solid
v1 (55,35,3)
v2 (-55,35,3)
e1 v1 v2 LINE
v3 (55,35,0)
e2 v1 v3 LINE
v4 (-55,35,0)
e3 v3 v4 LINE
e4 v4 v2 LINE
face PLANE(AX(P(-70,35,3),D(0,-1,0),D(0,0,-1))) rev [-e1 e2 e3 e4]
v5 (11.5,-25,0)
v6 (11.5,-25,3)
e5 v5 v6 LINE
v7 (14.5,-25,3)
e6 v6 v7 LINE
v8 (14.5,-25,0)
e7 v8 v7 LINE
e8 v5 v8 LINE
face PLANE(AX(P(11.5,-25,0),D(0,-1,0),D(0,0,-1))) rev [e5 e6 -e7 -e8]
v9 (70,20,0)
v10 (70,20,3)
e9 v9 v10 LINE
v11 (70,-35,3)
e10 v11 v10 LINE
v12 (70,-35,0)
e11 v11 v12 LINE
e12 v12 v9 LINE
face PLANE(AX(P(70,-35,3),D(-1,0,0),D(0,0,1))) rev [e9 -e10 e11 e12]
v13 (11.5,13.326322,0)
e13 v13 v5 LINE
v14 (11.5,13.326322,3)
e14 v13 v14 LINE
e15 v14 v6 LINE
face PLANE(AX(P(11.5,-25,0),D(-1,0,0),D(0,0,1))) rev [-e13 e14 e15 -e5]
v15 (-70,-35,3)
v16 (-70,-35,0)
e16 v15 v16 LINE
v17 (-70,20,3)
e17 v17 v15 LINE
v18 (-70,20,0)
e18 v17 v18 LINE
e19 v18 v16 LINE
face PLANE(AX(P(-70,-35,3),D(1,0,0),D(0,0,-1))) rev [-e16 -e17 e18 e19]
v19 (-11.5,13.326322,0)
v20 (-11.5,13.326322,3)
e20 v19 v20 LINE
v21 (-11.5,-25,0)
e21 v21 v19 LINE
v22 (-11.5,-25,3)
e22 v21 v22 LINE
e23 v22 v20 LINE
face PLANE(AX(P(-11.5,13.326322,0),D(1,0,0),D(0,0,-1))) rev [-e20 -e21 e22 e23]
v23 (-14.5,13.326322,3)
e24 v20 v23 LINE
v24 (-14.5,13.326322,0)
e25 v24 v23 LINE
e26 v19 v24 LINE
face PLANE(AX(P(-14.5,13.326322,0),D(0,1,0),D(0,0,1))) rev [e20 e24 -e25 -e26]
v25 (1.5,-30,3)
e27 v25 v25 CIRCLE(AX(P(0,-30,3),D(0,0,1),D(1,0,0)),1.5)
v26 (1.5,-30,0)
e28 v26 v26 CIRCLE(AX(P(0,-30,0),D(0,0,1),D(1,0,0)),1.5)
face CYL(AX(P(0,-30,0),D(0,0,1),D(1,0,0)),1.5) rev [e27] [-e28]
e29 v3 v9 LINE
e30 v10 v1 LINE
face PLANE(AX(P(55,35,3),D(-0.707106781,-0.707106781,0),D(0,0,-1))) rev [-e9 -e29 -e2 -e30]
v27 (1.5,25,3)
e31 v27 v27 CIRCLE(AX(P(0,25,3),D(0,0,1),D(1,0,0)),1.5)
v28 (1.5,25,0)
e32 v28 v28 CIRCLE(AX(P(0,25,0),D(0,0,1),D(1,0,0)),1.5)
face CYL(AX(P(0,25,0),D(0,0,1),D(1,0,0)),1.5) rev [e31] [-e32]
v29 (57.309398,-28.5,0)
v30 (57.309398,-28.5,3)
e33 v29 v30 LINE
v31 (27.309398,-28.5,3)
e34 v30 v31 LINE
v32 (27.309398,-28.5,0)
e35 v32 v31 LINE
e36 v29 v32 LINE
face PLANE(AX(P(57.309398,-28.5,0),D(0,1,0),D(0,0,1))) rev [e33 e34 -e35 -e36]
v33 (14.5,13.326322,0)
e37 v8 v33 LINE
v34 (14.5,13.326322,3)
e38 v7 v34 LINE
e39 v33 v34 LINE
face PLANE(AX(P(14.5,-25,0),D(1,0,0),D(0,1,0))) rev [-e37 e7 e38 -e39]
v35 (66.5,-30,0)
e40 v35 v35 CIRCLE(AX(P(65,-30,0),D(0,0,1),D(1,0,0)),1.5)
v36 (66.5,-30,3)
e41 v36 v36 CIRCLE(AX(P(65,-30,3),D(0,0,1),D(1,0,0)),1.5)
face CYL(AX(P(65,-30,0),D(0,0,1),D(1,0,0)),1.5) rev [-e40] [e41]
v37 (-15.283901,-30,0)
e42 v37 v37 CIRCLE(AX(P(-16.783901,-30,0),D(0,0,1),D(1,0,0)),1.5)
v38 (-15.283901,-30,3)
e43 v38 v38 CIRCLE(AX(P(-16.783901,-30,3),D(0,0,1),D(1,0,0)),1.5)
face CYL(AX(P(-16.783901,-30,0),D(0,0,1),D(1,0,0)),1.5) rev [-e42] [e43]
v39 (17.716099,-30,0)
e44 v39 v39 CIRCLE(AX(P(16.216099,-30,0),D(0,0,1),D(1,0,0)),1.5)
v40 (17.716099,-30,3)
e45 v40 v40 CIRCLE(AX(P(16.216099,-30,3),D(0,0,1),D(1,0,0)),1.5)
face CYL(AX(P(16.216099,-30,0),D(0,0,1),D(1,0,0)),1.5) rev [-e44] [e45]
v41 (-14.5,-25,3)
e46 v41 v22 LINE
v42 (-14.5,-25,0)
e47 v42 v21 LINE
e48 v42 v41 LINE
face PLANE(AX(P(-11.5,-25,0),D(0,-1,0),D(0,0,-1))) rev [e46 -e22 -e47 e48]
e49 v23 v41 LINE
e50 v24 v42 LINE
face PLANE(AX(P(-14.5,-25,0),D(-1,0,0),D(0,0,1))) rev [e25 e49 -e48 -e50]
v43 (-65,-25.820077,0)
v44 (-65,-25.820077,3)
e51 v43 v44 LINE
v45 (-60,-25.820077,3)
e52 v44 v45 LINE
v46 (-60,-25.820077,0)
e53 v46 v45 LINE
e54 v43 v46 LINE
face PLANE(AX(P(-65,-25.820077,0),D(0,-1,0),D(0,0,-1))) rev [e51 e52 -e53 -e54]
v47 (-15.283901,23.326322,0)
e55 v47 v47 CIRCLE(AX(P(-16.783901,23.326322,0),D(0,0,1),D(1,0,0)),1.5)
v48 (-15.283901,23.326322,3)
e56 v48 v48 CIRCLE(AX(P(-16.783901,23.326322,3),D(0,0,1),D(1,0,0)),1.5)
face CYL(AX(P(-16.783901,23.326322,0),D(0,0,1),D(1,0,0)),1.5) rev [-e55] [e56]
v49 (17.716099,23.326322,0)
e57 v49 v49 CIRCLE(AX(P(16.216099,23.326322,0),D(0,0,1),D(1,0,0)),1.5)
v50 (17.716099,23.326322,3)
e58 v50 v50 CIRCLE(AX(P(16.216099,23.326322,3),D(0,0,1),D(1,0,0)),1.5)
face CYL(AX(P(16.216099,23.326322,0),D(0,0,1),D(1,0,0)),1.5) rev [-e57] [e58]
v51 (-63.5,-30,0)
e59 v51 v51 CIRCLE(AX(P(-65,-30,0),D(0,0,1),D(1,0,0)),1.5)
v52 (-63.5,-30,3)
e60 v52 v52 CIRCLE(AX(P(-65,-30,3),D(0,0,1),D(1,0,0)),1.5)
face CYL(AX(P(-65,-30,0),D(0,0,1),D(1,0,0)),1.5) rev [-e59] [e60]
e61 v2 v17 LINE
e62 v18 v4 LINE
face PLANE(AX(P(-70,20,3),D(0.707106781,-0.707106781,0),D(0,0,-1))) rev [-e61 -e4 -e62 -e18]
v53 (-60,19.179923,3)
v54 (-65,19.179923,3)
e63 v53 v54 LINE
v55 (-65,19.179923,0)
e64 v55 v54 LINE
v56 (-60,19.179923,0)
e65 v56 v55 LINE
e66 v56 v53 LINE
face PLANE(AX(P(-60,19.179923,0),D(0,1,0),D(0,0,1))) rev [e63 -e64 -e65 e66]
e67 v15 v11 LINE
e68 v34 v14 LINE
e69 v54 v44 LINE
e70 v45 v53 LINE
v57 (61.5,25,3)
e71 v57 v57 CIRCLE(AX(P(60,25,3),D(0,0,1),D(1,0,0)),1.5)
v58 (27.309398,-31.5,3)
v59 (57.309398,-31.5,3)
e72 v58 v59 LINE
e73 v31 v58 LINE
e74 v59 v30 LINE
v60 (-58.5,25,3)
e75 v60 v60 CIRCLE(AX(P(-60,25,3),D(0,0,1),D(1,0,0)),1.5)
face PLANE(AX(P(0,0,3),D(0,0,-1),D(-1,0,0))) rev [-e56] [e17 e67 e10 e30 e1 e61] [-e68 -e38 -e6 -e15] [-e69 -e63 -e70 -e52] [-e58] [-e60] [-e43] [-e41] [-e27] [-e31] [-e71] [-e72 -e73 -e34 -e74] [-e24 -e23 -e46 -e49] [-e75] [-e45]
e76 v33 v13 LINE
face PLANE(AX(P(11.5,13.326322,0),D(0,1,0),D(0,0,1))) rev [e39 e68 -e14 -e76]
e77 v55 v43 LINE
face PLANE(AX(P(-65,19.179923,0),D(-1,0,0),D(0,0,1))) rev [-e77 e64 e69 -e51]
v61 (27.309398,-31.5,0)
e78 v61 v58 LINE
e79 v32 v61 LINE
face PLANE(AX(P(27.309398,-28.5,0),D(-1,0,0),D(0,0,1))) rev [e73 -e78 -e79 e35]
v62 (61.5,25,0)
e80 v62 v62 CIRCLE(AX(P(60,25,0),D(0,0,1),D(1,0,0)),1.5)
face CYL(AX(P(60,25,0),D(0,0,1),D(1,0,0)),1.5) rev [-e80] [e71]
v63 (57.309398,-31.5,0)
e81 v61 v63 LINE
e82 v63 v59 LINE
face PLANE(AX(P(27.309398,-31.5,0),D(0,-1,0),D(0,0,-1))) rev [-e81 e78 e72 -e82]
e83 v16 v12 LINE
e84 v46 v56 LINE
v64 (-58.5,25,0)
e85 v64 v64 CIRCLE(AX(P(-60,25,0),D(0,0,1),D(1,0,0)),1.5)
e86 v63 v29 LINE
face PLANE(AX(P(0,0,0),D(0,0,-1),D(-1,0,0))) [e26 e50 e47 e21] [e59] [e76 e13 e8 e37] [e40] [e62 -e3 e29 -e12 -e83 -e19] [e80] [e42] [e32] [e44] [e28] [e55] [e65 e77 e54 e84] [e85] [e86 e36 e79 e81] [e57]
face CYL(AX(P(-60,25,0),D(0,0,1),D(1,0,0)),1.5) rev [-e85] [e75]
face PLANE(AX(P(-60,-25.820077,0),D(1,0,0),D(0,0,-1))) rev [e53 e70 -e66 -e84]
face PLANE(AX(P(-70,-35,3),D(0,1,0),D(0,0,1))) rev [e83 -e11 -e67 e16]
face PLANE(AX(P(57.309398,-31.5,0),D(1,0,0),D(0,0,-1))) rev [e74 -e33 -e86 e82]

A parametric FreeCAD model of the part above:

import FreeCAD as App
import Part
import Sketcher

V = App.Vector
Q = App.Units.Quantity


def edges_at(feature, points):
    """Names of the edges that pass closest to the given points."""
    edges = feature.Shape.Edges
    near = lambda p: min(range(len(edges)), key=lambda i: edges[i].distToShape(Part.Vertex(*p))[0])
    return sorted({f"Edge{near(p) + 1}" for p in points})


def add_polygon(sketch, points):
    """Adds a closed chain of lines whose ends are joined by coincident constraints."""
    first, n = sketch.GeometryCount, len(points)
    for a, b in zip(points, points[1:] + points[:1]):
        sketch.addGeometry(Part.LineSegment(App.Vector(*a, 0), App.Vector(*b, 0)), False)
    for i in range(n):
        sketch.addConstraint(Sketcher.Constraint("Coincident", first + i, 2, first + (i + 1) % n, 1))

doc = App.newDocument("Part")
params = doc.addObject("Spreadsheet::Sheet", "Params")
for row, (alias, value) in enumerate([
    ("sketch1_width", "140 mm"),
    ("sketch1_height", "70 mm"),
    ("pad1_length", "3 mm"),
    ("sketch2_diameter", "3 mm"),
    ("pocket1_length", "3 mm"),
    ("chamfer_size", "15 mm"),
    ("sketch3_diameter", "3 mm"),
    ("sketch3_width", "3 mm"),
    ("sketch3_width2", "30 mm"),
    ("sketch3_width3", "5 mm"),
    ("sketch3_height", "45 mm"),
    ("pocket2_length", "3 mm"),
], start=1):
    params.set(f"A{row}", alias)
    params.set(f"B{row}", "=" + value)
    params.setAlias(f"B{row}", alias)

body = doc.addObject("PartDesign::Body", "Body")

sketch1 = body.newObject("Sketcher::SketchObject", "Sketch")
sketch1.AttachmentSupport = (doc.getObject("XY_Plane"), [""])
sketch1.MapMode = "FlatFace"
add_polygon(sketch1, [(-70, 35), (-70, -35), (70, -35), (70, 35)])
sketch1.addConstraint(Sketcher.Constraint("Vertical", 0))
sketch1.addConstraint(Sketcher.Constraint("Horizontal", 1))
sketch1.addConstraint(Sketcher.Constraint("Vertical", 2))
sketch1.addConstraint(Sketcher.Constraint("Horizontal", 3))
sketch1.addConstraint(Sketcher.Constraint("Symmetric", 0, 2, 2, 2, -1, 1))
sketch1.addConstraint(Sketcher.Constraint("DistanceX", 1, 1, 1, 2, Q("140 mm")))
sketch1.addConstraint(Sketcher.Constraint("DistanceY", 0, 2, 0, 1, Q("70 mm")))
sketch1.setExpression("Constraints[9]", "Params.sketch1_width")
sketch1.setExpression("Constraints[10]", "Params.sketch1_height")
pad1 = body.newObject("PartDesign::Pad", "Pad")
pad1.Profile = sketch1
pad1.setExpression("Length", "Params.pad1_length")

sketch2 = body.newObject("Sketcher::SketchObject", "Sketch001")
sketch2.AttachmentSupport = (doc.getObject("XY_Plane"), [""])
sketch2.MapMode = "FlatFace"
sketch2.AttachmentOffset = App.Placement(V(0, 0, 3), App.Rotation())
sketch2.addGeometry(Part.Circle(V(-65, -30, 0), V(0, 0, 1), 1.5), False)
sketch2.addGeometry(Part.Circle(V(65, -30, 0), V(0, 0, 1), 1.5), False)
sketch2.addGeometry(Part.Circle(V(0, -30, 0), V(0, 0, 1), 1.5), False)
sketch2.addGeometry(Part.Circle(V(-60, 25, 0), V(0, 0, 1), 1.5), False)
sketch2.addGeometry(Part.Circle(V(60, 25, 0), V(0, 0, 1), 1.5), False)
sketch2.addGeometry(Part.Circle(V(0, 25, 0), V(0, 0, 1), 1.5), False)
sketch2.addConstraint(Sketcher.Constraint("Equal", 0, 1))
sketch2.addConstraint(Sketcher.Constraint("Equal", 1, 2))
sketch2.addConstraint(Sketcher.Constraint("Equal", 2, 3))
sketch2.addConstraint(Sketcher.Constraint("Equal", 3, 4))
sketch2.addConstraint(Sketcher.Constraint("Equal", 4, 5))
sketch2.addConstraint(Sketcher.Constraint("Symmetric", 0, 3, 1, 3, -2))
sketch2.addConstraint(Sketcher.Constraint("Symmetric", 3, 3, 4, 3, -2))
sketch2.addConstraint(Sketcher.Constraint("PointOnObject", 2, 3, -2))
sketch2.addConstraint(Sketcher.Constraint("PointOnObject", 5, 3, -2))
sketch2.addConstraint(Sketcher.Constraint("Horizontal", 1, 3, 2, 3))
sketch2.addConstraint(Sketcher.Constraint("Horizontal", 4, 3, 5, 3))
sketch2.addConstraint(Sketcher.Constraint("Diameter", 0, Q("3 mm")))
sketch2.addConstraint(Sketcher.Constraint("DistanceX", 0, 3, -1, 1, Q("65 mm")))
sketch2.addConstraint(Sketcher.Constraint("DistanceY", 0, 3, -1, 1, Q("30 mm")))
sketch2.addConstraint(Sketcher.Constraint("DistanceX", 3, 3, -1, 1, Q("60 mm")))
sketch2.addConstraint(Sketcher.Constraint("DistanceY", -1, 1, 3, 3, Q("25 mm")))
sketch2.setExpression("Constraints[11]", "Params.sketch2_diameter")
pocket1 = body.newObject("PartDesign::Pocket", "Pocket")
pocket1.Profile = sketch2
pocket1.setExpression("Length", "Params.pocket1_length")
doc.recompute()

chamfer = body.newObject("PartDesign::Chamfer", "Chamfer")
chamfer.Base = (pocket1, edges_at(pocket1, [(-70, 35, 1.5), (70, 35, 1.5)]))
chamfer.setExpression("Size", "Params.chamfer_size")

sketch3 = body.newObject("Sketcher::SketchObject", "Sketch002")
sketch3.AttachmentSupport = (doc.getObject("XY_Plane"), [""])
sketch3.MapMode = "FlatFace"
sketch3.AttachmentOffset = App.Placement(V(0, 0, 3), App.Rotation())
sketch3.addGeometry(Part.Circle(V(-16.8, 23.3, 0), V(0, 0, 1), 1.5), False)
sketch3.addGeometry(Part.Circle(V(16.2, 23.3, 0), V(0, 0, 1), 1.5), False)
sketch3.addGeometry(Part.Circle(V(-16.8, -30, 0), V(0, 0, 1), 1.5), False)
sketch3.addGeometry(Part.Circle(V(16.2, -30, 0), V(0, 0, 1), 1.5), False)
add_polygon(sketch3, [(11.5, 13.3), (11.5, -25), (14.5, -25), (14.5, 13.3)])
add_polygon(sketch3, [(-14.5, 13.3), (-14.5, -25), (-11.5, -25), (-11.5, 13.3)])
add_polygon(sketch3, [(27.3, -28.5), (27.3, -31.5), (57.3, -31.5), (57.3, -28.5)])
add_polygon(sketch3, [(-65, 19.2), (-65, -25.8), (-60, -25.8), (-60, 19.2)])
sketch3.addConstraint(Sketcher.Constraint("Vertical", 4))
sketch3.addConstraint(Sketcher.Constraint("Horizontal", 5))
sketch3.addConstraint(Sketcher.Constraint("Vertical", 6))
sketch3.addConstraint(Sketcher.Constraint("Horizontal", 7))
sketch3.addConstraint(Sketcher.Constraint("Vertical", 8))
sketch3.addConstraint(Sketcher.Constraint("Horizontal", 9))
sketch3.addConstraint(Sketcher.Constraint("Vertical", 10))
sketch3.addConstraint(Sketcher.Constraint("Horizontal", 11))
sketch3.addConstraint(Sketcher.Constraint("Vertical", 12))
sketch3.addConstraint(Sketcher.Constraint("Horizontal", 13))
sketch3.addConstraint(Sketcher.Constraint("Vertical", 14))
sketch3.addConstraint(Sketcher.Constraint("Horizontal", 15))
sketch3.addConstraint(Sketcher.Constraint("Vertical", 16))
sketch3.addConstraint(Sketcher.Constraint("Horizontal", 17))
sketch3.addConstraint(Sketcher.Constraint("Vertical", 18))
sketch3.addConstraint(Sketcher.Constraint("Horizontal", 19))
sketch3.addConstraint(Sketcher.Constraint("Equal", 0, 1))
sketch3.addConstraint(Sketcher.Constraint("Equal", 1, 2))
sketch3.addConstraint(Sketcher.Constraint("Equal", 2, 3))
sketch3.addConstraint(Sketcher.Constraint("Symmetric", 5, 2, 8, 2, -2))
sketch3.addConstraint(Sketcher.Constraint("Symmetric", 7, 2, 10, 2, -2))
sketch3.addConstraint(Sketcher.Constraint("Horizontal", 0, 3, 1, 3))
sketch3.addConstraint(Sketcher.Constraint("Horizontal", 2, 3, 3, 3))
sketch3.addConstraint(Sketcher.Constraint("Vertical", 0, 3, 2, 3))
sketch3.addConstraint(Sketcher.Constraint("Vertical", 1, 3, 3, 3))
sketch3.addConstraint(Sketcher.Constraint("Equal", 11, 12))
sketch3.addConstraint(Sketcher.Constraint("Diameter", 0, Q("3 mm")))
sketch3.addConstraint(Sketcher.Constraint("DistanceX", 5, 1, 5, 2, Q("3 mm")))
sketch3.addConstraint(Sketcher.Constraint("DistanceX", 13, 1, 13, 2, Q("30 mm")))
sketch3.addConstraint(Sketcher.Constraint("DistanceX", 17, 1, 17, 2, Q("5 mm")))
sketch3.addConstraint(Sketcher.Constraint("DistanceY", 16, 2, 16, 1, Q("45 mm")))
sketch3.addConstraint(Sketcher.Constraint("DistanceY", 2, 3, -1, 1, Q("30 mm")))
sketch3.addConstraint(Sketcher.Constraint("DistanceY", 4, 2, -1, 1, Q("25 mm")))
sketch3.addConstraint(Sketcher.Constraint("DistanceX", 16, 2, -1, 1, Q("65 mm")))
sketch3.addConstraint(Sketcher.Constraint("DistanceX", 0, 3, 1, 3, Q("33 mm")))
sketch3.addConstraint(Sketcher.Constraint("DistanceY", 6, 2, 1, 3, Q("10 mm")))
sketch3.addConstraint(Sketcher.Constraint("DistanceX", 8, 2, 4, 2, Q("26 mm")))
sketch3.addConstraint(Sketcher.Constraint("DistanceY", 12, 2, -1, 1, Q("31.5 mm")))
sketch3.addConstraint(Sketcher.Constraint("DistanceY", 4, 2, 4, 1, Q("38.326322 mm")))
sketch3.addConstraint(Sketcher.Constraint("DistanceX", 0, 3, -1, 1, Q("16.783901 mm")))
sketch3.addConstraint(Sketcher.Constraint("DistanceX", 3, 3, 12, 2, Q("11.093298 mm")))
sketch3.addConstraint(Sketcher.Constraint("DistanceY", 16, 2, 11, 2, Q("39.146398 mm")))
sketch3.setExpression("Constraints[42]", "Params.sketch3_diameter")
sketch3.setExpression("Constraints[43]", "Params.sketch3_width")
sketch3.setExpression("Constraints[44]", "Params.sketch3_width2")
sketch3.setExpression("Constraints[45]", "Params.sketch3_width3")
sketch3.setExpression("Constraints[46]", "Params.sketch3_height")
pocket2 = body.newObject("PartDesign::Pocket", "Pocket001")
pocket2.Profile = sketch3
pocket2.setExpression("Length", "Params.pocket2_length")

doc.recompute()
